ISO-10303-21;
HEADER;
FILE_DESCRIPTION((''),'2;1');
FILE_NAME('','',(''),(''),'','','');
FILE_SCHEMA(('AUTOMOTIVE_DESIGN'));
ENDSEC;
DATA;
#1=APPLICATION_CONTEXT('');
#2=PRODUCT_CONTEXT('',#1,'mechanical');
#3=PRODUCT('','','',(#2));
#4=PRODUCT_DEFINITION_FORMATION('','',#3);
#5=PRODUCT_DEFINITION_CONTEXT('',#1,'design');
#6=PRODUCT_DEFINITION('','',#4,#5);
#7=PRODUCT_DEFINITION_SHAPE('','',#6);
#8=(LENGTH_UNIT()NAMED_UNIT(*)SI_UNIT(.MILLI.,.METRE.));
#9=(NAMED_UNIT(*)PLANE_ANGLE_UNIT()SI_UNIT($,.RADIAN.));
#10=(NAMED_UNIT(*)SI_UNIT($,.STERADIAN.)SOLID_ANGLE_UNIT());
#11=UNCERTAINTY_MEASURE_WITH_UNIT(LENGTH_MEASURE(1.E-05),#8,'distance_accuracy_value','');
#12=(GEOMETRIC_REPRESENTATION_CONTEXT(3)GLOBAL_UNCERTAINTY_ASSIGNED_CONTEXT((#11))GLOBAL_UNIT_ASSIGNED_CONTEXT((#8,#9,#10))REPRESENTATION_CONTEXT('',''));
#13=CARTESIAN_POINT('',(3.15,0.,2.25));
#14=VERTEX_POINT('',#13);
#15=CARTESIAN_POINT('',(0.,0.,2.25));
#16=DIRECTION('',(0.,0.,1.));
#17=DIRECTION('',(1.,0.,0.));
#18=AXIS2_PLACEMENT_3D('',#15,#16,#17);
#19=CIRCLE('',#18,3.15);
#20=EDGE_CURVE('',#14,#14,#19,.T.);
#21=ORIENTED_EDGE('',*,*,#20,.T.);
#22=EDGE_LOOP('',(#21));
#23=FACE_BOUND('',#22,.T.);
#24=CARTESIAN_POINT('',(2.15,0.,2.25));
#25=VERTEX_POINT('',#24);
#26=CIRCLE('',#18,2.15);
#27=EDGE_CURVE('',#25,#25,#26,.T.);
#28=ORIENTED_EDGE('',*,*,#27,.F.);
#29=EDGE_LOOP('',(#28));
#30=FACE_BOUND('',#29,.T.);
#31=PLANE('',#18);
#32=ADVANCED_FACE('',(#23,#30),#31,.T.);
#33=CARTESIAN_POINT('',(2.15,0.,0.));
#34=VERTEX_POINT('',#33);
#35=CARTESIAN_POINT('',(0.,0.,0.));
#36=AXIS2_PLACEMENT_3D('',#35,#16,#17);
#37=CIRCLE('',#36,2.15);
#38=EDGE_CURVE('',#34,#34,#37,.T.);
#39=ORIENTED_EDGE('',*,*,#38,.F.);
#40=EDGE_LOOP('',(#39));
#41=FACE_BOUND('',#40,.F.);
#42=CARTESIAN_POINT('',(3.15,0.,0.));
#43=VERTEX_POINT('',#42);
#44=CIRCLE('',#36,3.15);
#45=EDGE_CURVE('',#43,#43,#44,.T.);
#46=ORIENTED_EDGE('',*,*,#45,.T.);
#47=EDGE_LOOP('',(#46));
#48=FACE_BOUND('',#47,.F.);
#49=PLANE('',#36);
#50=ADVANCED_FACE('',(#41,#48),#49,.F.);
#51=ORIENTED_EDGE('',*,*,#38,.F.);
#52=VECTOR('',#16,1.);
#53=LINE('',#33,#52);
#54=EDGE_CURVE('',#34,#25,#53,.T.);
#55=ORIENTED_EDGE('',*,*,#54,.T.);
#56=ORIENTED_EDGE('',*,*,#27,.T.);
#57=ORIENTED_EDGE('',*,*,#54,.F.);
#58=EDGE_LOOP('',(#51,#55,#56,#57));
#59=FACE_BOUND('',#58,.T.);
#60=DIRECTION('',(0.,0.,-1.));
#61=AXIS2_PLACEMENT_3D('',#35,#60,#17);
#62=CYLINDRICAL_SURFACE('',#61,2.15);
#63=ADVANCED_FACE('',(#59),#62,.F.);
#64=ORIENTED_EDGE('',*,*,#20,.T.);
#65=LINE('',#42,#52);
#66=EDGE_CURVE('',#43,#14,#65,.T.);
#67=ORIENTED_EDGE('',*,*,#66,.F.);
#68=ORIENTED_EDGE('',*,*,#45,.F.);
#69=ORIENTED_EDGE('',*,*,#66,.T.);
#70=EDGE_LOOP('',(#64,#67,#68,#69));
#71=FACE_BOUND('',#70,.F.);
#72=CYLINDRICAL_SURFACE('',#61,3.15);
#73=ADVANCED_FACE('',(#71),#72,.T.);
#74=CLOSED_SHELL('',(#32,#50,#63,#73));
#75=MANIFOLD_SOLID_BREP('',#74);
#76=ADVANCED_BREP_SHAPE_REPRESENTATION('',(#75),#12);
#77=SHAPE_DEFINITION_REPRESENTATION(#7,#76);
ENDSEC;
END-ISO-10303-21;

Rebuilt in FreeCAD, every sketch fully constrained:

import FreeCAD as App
import Part
import Sketcher

V = App.Vector
Q = App.Units.Quantity

doc = App.newDocument("Part")
body = doc.addObject("PartDesign::Body", "Body")

# Sketch on XY plane
sketch1 = doc.addObject("Sketcher::SketchObject", "Sketch")
body.addObject(sketch1)
sketch1.AttachmentSupport = (doc.XY_Plane, [""])
sketch1.MapMode = "FlatFace"
sketch1.addGeometry([
    Part.Circle(V(0, 0, 0), V(0, 0, 1), 3.1),
    Part.Circle(V(0, 0, 0), V(0, 0, 1), 2.1),
], False)
sketch1.addConstraint([
    Sketcher.Constraint("Coincident", 0, 3, -1, 1),
    Sketcher.Constraint("Coincident", 1, 3, -1, 1),
    Sketcher.Constraint("Diameter", 0, Q("6.3 mm")),
    Sketcher.Constraint("Diameter", 1, Q("4.3 mm")),
])
pad1 = doc.addObject("PartDesign::Pad", "Pad")
body.addObject(pad1)
pad1.Profile = sketch1
pad1.Length = 2.25

doc.recompute()
